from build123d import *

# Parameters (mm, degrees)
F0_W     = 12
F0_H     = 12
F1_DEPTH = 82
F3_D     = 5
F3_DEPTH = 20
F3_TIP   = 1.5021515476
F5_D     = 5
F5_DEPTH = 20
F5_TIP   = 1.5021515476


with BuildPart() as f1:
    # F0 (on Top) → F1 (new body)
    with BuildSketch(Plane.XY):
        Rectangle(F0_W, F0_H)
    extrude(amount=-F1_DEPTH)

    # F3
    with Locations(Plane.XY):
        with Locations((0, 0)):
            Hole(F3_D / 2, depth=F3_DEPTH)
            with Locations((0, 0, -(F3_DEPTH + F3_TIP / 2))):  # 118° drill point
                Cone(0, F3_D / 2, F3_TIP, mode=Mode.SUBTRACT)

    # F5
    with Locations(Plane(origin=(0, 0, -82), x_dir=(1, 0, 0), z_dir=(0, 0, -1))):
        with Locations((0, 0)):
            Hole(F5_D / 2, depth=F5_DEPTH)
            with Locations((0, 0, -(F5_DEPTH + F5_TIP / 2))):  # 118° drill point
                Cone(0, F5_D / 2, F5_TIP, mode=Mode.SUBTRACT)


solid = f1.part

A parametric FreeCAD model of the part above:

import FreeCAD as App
import Part
import Sketcher

V = App.Vector
Q = App.Units.Quantity


def add_polygon(sketch, points):
    """Adds a closed chain of lines whose ends are joined by coincident constraints."""
    first, n = sketch.GeometryCount, len(points)
    for a, b in zip(points, points[1:] + points[:1]):
        sketch.addGeometry(Part.LineSegment(App.Vector(*a, 0), App.Vector(*b, 0)), False)
    for i in range(n):
        sketch.addConstraint(Sketcher.Constraint("Coincident", first + i, 2, first + (i + 1) % n, 1))

doc = App.newDocument("Part")
body = doc.addObject("PartDesign::Body", "Body")

sketch1 = body.newObject("Sketcher::SketchObject", "Sketch")
sketch1.AttachmentSupport = (doc.getObject("XY_Plane"), [""])
sketch1.MapMode = "FlatFace"
add_polygon(sketch1, [(-6, 6), (-6, -6), (6, -6), (6, 6)])
sketch1.addConstraint([
    Sketcher.Constraint("Vertical", 0),
    Sketcher.Constraint("Horizontal", 1),
    Sketcher.Constraint("Vertical", 2),
    Sketcher.Constraint("Horizontal", 3),
    Sketcher.Constraint("Symmetric", 0, 2, 2, 2, -1, 1),
    Sketcher.Constraint("Equal", 3, 0),
    Sketcher.Constraint("DistanceX", 1, 1, 1, 2, Q("12 mm")),
])
pad1 = body.newObject("PartDesign::Pad", "Pad")
pad1.Profile = sketch1
pad1.Length = 82
pad1.Reversed = True

sketch2 = body.newObject("Sketcher::SketchObject", "Sketch001")
sketch2.AttachmentSupport = (doc.getObject("XY_Plane"), [""])
sketch2.MapMode = "FlatFace"
sketch2.addGeometry(Part.Circle(V(0, 0, 0), V(0, 0, 1), 2.5), False)
sketch2.addConstraint([
    Sketcher.Constraint("Coincident", 0, 3, -1, 1),
    Sketcher.Constraint("Diameter", 0, Q("5 mm")),
])
doc.recompute()
hole = body.newObject("PartDesign::Hole", "Hole")
hole.Profile = sketch2
hole.ThreadType = "None"
hole.Diameter = 5
hole.DepthType = "Dimension"
hole.Depth = 20
hole.DrillPoint = "Angled"
hole.DrillPointAngle = 118

sketch3 = body.newObject("Sketcher::SketchObject", "Sketch002")
sketch3.AttachmentSupport = (doc.getObject("XY_Plane"), [""])
sketch3.MapMode = "FlatFace"
sketch3.AttachmentOffset = App.Placement(V(0, 0, -82), App.Rotation())
sketch3.addGeometry(Part.Circle(V(0, 0, 0), V(0, 0, 1), 2.5), False)
sketch3.addConstraint([
    Sketcher.Constraint("Coincident", 0, 3, -1, 1),
    Sketcher.Constraint("Diameter", 0, Q("5 mm")),
])
doc.recompute()
hole2 = body.newObject("PartDesign::Hole", "Hole001")
hole2.Profile = sketch3
hole2.ThreadType = "None"
hole2.Diameter = 5
hole2.DepthType = "Dimension"
hole2.Depth = 20
hole2.DrillPoint = "Angled"
hole2.DrillPointAngle = 118
hole2.Reversed = True

doc.recompute()
